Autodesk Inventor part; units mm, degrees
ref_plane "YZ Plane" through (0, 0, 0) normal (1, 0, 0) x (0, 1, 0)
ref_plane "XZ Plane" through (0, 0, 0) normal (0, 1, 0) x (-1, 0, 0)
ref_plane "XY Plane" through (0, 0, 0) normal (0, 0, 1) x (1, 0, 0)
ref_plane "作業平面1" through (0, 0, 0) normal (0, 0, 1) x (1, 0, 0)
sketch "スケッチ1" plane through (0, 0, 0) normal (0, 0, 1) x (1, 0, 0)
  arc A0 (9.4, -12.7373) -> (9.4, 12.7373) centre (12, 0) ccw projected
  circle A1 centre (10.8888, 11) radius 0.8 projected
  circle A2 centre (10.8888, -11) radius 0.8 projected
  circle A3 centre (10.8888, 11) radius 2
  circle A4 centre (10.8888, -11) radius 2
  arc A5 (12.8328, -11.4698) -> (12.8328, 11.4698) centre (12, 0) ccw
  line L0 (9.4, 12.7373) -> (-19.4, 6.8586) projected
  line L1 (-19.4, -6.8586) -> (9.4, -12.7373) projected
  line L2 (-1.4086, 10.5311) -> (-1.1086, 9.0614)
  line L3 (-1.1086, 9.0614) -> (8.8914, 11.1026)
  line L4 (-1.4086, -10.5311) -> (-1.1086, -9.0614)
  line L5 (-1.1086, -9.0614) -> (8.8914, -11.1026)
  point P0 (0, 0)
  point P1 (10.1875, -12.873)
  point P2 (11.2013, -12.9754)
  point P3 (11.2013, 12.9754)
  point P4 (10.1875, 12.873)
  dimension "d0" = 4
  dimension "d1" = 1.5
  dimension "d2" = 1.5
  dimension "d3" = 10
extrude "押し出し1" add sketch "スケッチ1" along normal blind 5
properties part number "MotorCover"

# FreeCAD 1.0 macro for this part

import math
import FreeCAD as App
import Part
import Sketcher

V = App.Vector
Q = App.Units.Quantity

doc = App.newDocument("Part")
body = doc.addObject("PartDesign::Body", "Body")

# Sketch on XY plane
sketch1 = body.newObject("Sketcher::SketchObject", "Sketch")
sketch1.AttachmentSupport = (doc.getObject("XY_Plane"), [""])
sketch1.MapMode = "FlatFace"
sketch1.addGeometry([
    Part.LineSegment(V(-1.408587, -10.531035, 0), V(9.4, -12.7373, 0)),  # 0
    Part.ArcOfCircle(Part.Circle(V(12, 0, 0), V(0, 0, 1), 12.999954), math.radians(-101.537), math.radians(-98.015093)),  # 1
    Part.ArcOfCircle(Part.Circle(V(10.8888, -11, 0), V(0, 0, 1), 2), math.radians(-110.531211), math.radians(-81.005484)),  # 2
    Part.ArcOfCircle(Part.Circle(V(12, 0, 0), V(0, 0, 1), 12.999954), math.radians(-93.521601), math.radians(93.521601)),  # 3
    Part.ArcOfCircle(Part.Circle(V(10.8888, 11, 0), V(0, 0, 1), 2), math.radians(81.005484), math.radians(110.531211)),  # 4
    Part.ArcOfCircle(Part.Circle(V(12, 0, 0), V(0, 0, 1), 12.999954), math.radians(98.015093), math.radians(101.537)),  # 5
    Part.LineSegment(V(9.4, 12.7373, 0), V(-1.408587, 10.531035, 0)),  # 6
    Part.LineSegment(V(-1.4086, 10.5311, 0), V(-1.1086, 9.0614, 0)),  # 7
    Part.LineSegment(V(-1.1086, 9.0614, 0), V(8.8914, 11.1026, 0)),  # 8
    Part.ArcOfCircle(Part.Circle(V(10.8888, 11, 0), V(0, 0, 1), 2), math.radians(177.059485), math.radians(373.585991)),  # 9
    Part.ArcOfCircle(Part.Circle(V(12, 0, 0), V(0, 0, 1), 11.499994), math.radians(-85.847152), math.radians(85.847152)),  # 10
    Part.ArcOfCircle(Part.Circle(V(10.8888, -11, 0), V(0, 0, 1), 2), math.radians(-13.585991), math.radians(182.940515)),  # 11
    Part.LineSegment(V(8.8914, -11.1026, 0), V(-1.1086, -9.0614, 0)),  # 12
    Part.LineSegment(V(-1.1086, -9.0614, 0), V(-1.4086, -10.5311, 0)),  # 13
    Part.Circle(V(10.8888, -11, 0), V(0, 0, 1), 0.8),  # 14
    Part.Circle(V(10.8888, 11, 0), V(0, 0, 1), 0.8),  # 15
], False)
sketch1.addConstraint([
    Sketcher.Constraint("Tangent", 0, 2, 1, 1),
    Sketcher.Constraint("Coincident", 1, 2, 2, 1),
    Sketcher.Constraint("Coincident", 2, 2, 3, 1),
    Sketcher.Constraint("Coincident", 3, 2, 4, 1),
    Sketcher.Constraint("Coincident", 4, 2, 5, 1),
    Sketcher.Constraint("Tangent", 5, 2, 6, 1),
    Sketcher.Constraint("Coincident", 6, 2, 7, 1),
    Sketcher.Constraint("Coincident", 7, 2, 8, 1),
    Sketcher.Constraint("Coincident", 8, 2, 9, 1),
    Sketcher.Constraint("Coincident", 9, 2, 10, 2),
    Sketcher.Constraint("Coincident", 10, 1, 11, 1),
    Sketcher.Constraint("Coincident", 11, 2, 12, 1),
    Sketcher.Constraint("Coincident", 12, 2, 13, 1),
    Sketcher.Constraint("Coincident", 13, 2, 0, 1),
    Sketcher.Constraint("Coincident", 3, 3, 1, 3),
    Sketcher.Constraint("Coincident", 5, 3, 1, 3),
    Sketcher.Constraint("Coincident", 9, 3, 4, 3),
    Sketcher.Constraint("Coincident", 10, 3, 1, 3),
    Sketcher.Constraint("Coincident", 11, 3, 2, 3),
    Sketcher.Constraint("Coincident", 14, 3, 2, 3),
    Sketcher.Constraint("Coincident", 15, 3, 4, 3),
    Sketcher.Constraint("Equal", 1, 3),
    Sketcher.Constraint("Equal", 2, 4),
    Sketcher.Constraint("Equal", 3, 5),
    Sketcher.Constraint("Equal", 4, 9),
    Sketcher.Constraint("Equal", 9, 11),
    Sketcher.Constraint("Equal", 14, 15),
    Sketcher.Constraint("Symmetric", 2, 3, 4, 3, -1),
    Sketcher.Constraint("Symmetric", 0, 2, 5, 2, -1),
    Sketcher.Constraint("Symmetric", 7, 2, 12, 2, -1),
    Sketcher.Constraint("Perpendicular", 6, 7),
    Sketcher.Constraint("Perpendicular", 7, 8),
    Sketcher.Constraint("Parallel", 0, 12),
    Sketcher.Constraint("Perpendicular", 12, 13),
    Sketcher.Constraint("Radius", 2, Q("2 mm")),
    Sketcher.Constraint("Radius", 1, Q("13 mm")),
    Sketcher.Constraint("DistanceX", 12, 2, 11, 2, Q("10 mm")),
    Sketcher.Constraint("Distance", 7, Q("1.5 mm")),
    Sketcher.Constraint("Diameter", 14, Q("1.6 mm")),
    Sketcher.Constraint("Radius", 10, Q("11.5 mm")),
    Sketcher.Constraint("DistanceX", -1, 1, 1, 3, Q("12 mm")),
    Sketcher.Constraint("DistanceY", 2, 3, -1, 1, Q("11 mm")),
    Sketcher.Constraint("DistanceX", -1, 1, 0, 2, Q("9.4 mm")),
    Sketcher.Constraint("DistanceY", 1, 2, -1, 1, Q("12.873 mm")),
])
pad1 = body.newObject("PartDesign::Pad", "Pad")
pad1.Profile = sketch1
pad1.Length = 5

doc.recompute()
